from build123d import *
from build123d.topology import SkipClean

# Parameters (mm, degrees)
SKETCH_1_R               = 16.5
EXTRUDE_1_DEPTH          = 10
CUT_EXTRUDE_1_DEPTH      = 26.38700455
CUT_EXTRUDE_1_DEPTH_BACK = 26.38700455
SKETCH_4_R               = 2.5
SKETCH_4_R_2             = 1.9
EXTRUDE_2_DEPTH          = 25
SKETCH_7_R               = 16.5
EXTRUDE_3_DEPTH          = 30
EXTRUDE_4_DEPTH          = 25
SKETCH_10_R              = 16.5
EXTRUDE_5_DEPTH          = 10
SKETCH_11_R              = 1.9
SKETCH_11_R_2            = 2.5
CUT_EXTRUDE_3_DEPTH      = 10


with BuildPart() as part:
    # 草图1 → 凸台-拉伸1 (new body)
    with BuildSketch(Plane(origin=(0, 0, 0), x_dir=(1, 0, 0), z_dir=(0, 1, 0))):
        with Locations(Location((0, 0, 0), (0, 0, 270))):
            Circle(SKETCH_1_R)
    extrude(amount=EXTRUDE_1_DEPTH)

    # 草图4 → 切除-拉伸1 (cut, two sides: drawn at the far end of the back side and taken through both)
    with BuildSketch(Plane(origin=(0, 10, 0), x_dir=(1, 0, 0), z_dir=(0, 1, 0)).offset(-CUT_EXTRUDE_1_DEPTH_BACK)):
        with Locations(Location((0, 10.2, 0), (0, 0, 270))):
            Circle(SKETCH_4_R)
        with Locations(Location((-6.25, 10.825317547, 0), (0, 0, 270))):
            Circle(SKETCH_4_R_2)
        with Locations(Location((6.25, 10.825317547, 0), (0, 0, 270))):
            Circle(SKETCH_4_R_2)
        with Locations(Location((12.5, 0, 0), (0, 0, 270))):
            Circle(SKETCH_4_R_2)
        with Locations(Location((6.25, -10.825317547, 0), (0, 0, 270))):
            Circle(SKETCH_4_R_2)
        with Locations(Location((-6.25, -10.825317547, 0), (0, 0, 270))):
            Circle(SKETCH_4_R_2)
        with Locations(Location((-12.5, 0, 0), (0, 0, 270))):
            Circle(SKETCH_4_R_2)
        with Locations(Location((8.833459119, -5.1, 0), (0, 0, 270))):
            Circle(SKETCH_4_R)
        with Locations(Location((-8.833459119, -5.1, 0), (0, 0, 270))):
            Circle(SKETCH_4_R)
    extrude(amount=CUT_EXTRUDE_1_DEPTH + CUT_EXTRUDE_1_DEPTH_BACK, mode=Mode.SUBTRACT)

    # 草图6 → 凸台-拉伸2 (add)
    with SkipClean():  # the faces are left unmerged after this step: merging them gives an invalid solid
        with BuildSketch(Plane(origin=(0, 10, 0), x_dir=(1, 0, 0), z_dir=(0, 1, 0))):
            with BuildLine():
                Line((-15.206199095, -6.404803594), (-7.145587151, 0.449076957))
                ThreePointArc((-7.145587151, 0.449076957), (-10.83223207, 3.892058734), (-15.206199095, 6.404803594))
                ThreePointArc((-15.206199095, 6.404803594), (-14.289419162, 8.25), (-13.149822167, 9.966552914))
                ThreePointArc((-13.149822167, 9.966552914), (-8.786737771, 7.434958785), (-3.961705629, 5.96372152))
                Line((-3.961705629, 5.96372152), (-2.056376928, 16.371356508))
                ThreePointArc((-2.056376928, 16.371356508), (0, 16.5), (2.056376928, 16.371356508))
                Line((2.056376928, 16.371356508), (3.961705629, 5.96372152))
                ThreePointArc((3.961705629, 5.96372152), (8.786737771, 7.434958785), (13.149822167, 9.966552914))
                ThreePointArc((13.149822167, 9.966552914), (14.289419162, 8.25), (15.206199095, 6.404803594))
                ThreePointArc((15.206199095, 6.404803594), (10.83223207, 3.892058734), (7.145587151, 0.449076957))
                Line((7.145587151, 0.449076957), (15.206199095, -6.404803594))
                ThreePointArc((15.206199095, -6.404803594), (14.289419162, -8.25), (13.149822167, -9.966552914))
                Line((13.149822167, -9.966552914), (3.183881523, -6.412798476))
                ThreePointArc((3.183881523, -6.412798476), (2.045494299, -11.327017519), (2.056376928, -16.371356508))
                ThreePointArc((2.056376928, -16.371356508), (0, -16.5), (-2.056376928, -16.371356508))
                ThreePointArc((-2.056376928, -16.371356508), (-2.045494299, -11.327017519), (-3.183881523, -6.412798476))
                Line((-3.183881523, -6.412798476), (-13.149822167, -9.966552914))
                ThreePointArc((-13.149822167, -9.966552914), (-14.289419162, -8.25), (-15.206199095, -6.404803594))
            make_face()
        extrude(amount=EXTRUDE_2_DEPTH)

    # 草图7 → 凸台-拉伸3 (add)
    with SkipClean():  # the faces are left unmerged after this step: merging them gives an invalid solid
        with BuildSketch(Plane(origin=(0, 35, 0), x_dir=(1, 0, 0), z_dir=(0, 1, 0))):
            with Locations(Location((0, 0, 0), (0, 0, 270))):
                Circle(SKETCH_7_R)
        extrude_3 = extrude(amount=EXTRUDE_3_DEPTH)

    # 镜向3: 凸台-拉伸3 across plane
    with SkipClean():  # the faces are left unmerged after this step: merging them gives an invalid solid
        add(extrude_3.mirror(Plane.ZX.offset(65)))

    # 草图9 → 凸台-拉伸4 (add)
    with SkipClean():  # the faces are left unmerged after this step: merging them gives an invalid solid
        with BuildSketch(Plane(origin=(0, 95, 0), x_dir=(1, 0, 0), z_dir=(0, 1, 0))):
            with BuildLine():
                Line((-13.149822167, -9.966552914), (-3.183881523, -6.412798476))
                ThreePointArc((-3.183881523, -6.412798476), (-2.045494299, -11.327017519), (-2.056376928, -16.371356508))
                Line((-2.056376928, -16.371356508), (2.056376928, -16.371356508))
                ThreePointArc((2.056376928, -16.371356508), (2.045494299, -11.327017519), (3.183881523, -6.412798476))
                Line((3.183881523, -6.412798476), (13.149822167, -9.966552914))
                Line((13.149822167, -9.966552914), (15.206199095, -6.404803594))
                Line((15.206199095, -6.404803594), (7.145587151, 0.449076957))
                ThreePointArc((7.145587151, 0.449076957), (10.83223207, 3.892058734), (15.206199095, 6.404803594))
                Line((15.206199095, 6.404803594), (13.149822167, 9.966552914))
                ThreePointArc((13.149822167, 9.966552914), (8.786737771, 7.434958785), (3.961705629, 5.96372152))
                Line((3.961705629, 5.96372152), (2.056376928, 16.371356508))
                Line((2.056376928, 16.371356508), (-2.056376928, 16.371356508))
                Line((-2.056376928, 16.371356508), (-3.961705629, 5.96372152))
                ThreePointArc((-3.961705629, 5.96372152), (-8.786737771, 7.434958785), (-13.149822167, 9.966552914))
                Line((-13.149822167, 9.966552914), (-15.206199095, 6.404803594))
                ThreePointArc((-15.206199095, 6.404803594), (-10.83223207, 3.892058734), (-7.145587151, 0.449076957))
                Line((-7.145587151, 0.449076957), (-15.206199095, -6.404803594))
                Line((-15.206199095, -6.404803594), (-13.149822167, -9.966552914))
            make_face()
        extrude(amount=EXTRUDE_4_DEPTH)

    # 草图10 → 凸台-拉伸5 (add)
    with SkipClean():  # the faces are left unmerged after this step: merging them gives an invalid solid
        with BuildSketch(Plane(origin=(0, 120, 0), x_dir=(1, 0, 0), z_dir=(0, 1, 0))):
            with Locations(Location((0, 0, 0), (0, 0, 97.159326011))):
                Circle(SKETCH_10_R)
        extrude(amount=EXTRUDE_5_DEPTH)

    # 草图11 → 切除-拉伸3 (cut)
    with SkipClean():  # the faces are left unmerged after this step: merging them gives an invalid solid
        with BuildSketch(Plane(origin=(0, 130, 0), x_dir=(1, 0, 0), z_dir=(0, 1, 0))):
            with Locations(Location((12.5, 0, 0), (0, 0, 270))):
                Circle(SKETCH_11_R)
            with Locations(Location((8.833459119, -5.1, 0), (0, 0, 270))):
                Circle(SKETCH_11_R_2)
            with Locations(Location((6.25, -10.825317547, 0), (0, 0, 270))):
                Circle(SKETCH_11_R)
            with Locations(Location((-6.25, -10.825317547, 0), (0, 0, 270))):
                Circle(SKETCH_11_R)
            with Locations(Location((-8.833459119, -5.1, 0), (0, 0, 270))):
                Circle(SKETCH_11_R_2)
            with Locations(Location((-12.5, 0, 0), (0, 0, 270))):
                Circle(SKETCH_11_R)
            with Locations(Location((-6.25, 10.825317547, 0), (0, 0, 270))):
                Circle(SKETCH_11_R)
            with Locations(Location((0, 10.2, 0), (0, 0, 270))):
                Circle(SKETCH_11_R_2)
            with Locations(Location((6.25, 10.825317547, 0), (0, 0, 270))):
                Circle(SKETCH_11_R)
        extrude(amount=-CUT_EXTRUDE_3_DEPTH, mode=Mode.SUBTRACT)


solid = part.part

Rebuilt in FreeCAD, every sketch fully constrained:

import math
import FreeCAD as App
import Part
import Sketcher
from FreeCAD import Vector
Q = App.Units.Quantity

doc = App.newDocument("Part")
params = doc.addObject("Spreadsheet::Sheet", "Params")
for row, (alias, value) in enumerate([
    ("sketch1_diameter", "33 mm"),
    ("pad1_length", "10 mm"),
    ("sketch2_diameter", "5 mm"),
    ("sketch2_diameter2", "3.8 mm"),
    ("sketch3_radius", "22 mm"),
    ("sketch3_radius2", "16.5 mm"),
    ("pad2_length", "25 mm"),
    ("sketch4_diameter", "33 mm"),
    ("pad3_length", "30 mm"),
    ("sketch5_radius", "22 mm"),
    ("pad4_length", "25 mm"),
    ("sketch6_diameter", "33 mm"),
    ("pad5_length", "10 mm"),
    ("sketch7_diameter", "5 mm"),
    ("sketch7_diameter2", "3.8 mm"),
    ("pocket2_length", "10 mm"),
], start=1):
    params.set(f"A{row}", alias)
    params.set(f"B{row}", "=" + value)
    params.setAlias(f"B{row}", alias)

body = doc.addObject("PartDesign::Body", "Body")

# Sketch on XZ plane
sketch1 = body.newObject("Sketcher::SketchObject", "Sketch")
sketch1.AttachmentSupport = (doc.getObject("XZ_Plane"), [""])
sketch1.MapMode = "FlatFace"
sketch1.addGeometry(Part.Circle(Vector(0, 0, 0), Vector(0, 0, 1), 16), False)
sketch1.addConstraint([
    Sketcher.Constraint("Coincident", 0, 3, -1, 1),
    Sketcher.Constraint("Diameter", 0, Q("33 mm")),
])
sketch1.setExpression("Constraints[1]", "Params.sketch1_diameter")
pad1 = body.newObject("PartDesign::Pad", "Pad")
pad1.Profile = sketch1
pad1.setExpression("Length", "Params.pad1_length")
pad1.Reversed = True

# Sketch on XZ plane
sketch2 = body.newObject("Sketcher::SketchObject", "Sketch001")
sketch2.AttachmentSupport = (doc.getObject("XZ_Plane"), [""])
sketch2.MapMode = "FlatFace"
sketch2.AttachmentOffset = App.Placement(Vector(0, 0, -10), App.Rotation())
sketch2.addGeometry([
    Part.Circle(Vector(0, -10.2, 0), Vector(0, 0, 1), 2.5),  # 0
    Part.Circle(Vector(-6.2, -10.8, 0), Vector(0, 0, 1), 1.9),  # 1
    Part.Circle(Vector(6.2, -10.8, 0), Vector(0, 0, 1), 1.9),  # 2
    Part.Circle(Vector(12.5, 0, 0), Vector(0, 0, 1), 1.9),  # 3
    Part.Circle(Vector(6.2, 10.8, 0), Vector(0, 0, 1), 1.9),  # 4
    Part.Circle(Vector(-6.2, 10.8, 0), Vector(0, 0, 1), 1.9),  # 5
    Part.Circle(Vector(-12.5, 0, 0), Vector(0, 0, 1), 1.9),  # 6
    Part.Circle(Vector(8.8, 5.1, 0), Vector(0, 0, 1), 2.5),  # 7
    Part.Circle(Vector(-8.8, 5.1, 0), Vector(0, 0, 1), 2.5),  # 8
], False)
sketch2.addConstraint([
    Sketcher.Constraint("Equal", 1, 2),
    Sketcher.Constraint("Equal", 2, 3),
    Sketcher.Constraint("Equal", 3, 4),
    Sketcher.Constraint("Equal", 4, 5),
    Sketcher.Constraint("Equal", 5, 6),
    Sketcher.Constraint("Equal", 0, 7),
    Sketcher.Constraint("Equal", 7, 8),
    Sketcher.Constraint("Symmetric", 1, 3, 4, 3, -1, 1),
    Sketcher.Constraint("Symmetric", 2, 3, 5, 3, -1, 1),
    Sketcher.Constraint("Symmetric", 3, 3, 6, 3, -1, 1),
    Sketcher.Constraint("Symmetric", 1, 3, 2, 3, -2),
    Sketcher.Constraint("Symmetric", 7, 3, 8, 3, -2),
    Sketcher.Constraint("PointOnObject", 0, 3, -2),
    Sketcher.Constraint("PointOnObject", 3, 3, -1),
    Sketcher.Constraint("Diameter", 0, Q("5 mm")),
    Sketcher.Constraint("Diameter", 1, Q("3.8 mm")),
    Sketcher.Constraint("DistanceY", 0, 3, -1, 1, Q("10.2 mm")),
    Sketcher.Constraint("DistanceX", -1, 1, 3, 3, Q("12.5 mm")),
    Sketcher.Constraint("DistanceY", -1, 1, 7, 3, Q("5.1 mm")),
    Sketcher.Constraint("DistanceX", 1, 3, 2, 3, Q("12.5 mm")),
    Sketcher.Constraint("DistanceX", -1, 1, 7, 3, Q("8.833459 mm")),
    Sketcher.Constraint("DistanceY", 1, 3, -1, 1, Q("10.825318 mm")),
])
sketch2.setExpression("Constraints[14]", "Params.sketch2_diameter")
sketch2.setExpression("Constraints[15]", "Params.sketch2_diameter2")
pocket1 = body.newObject("PartDesign::Pocket", "Pocket")
pocket1.Profile = sketch2
pocket1.Type = "ThroughAll"
pocket1.Midplane = True

# Sketch on XZ plane
sketch3 = body.newObject("Sketcher::SketchObject", "Sketch002")
sketch3.AttachmentSupport = (doc.getObject("XZ_Plane"), [""])
sketch3.MapMode = "FlatFace"
sketch3.AttachmentOffset = App.Placement(Vector(0, 0, -10), App.Rotation())
sketch3.addGeometry([
    Part.LineSegment(Vector(-7.1, -0.4, 0), Vector(-15.2, 6.4, 0)),  # 0
    Part.ArcOfCircle(Part.Circle(Vector(0, 0, 0), Vector(0, 0, 1), 16.5), math.radians(142.84), math.radians(157.16)),  # 1
    Part.LineSegment(Vector(-13.1, 10, 0), Vector(-3.2, 6.4, 0)),  # 2
    Part.ArcOfCircle(Part.Circle(Vector(-23.9, 13.8, 0), Vector(0, 0, 1), 22), math.radians(-20), math.radians(7)),  # 3
    Part.ArcOfCircle(Part.Circle(Vector(0, 0, 0), Vector(0, 0, 1), 16.5), math.radians(82.84), math.radians(97.16)),  # 4
    Part.ArcOfCircle(Part.Circle(Vector(23.9, 13.8, 0), Vector(0, 0, 1), 22), math.radians(173), math.radians(200)),  # 5
    Part.LineSegment(Vector(3.2, 6.4, 0), Vector(13.1, 10, 0)),  # 6
    Part.ArcOfCircle(Part.Circle(Vector(0, 0, 0), Vector(0, 0, 1), 16.5), math.radians(22.84), math.radians(37.16)),  # 7
    Part.LineSegment(Vector(15.2, 6.4, 0), Vector(7.1, -0.4, 0)),  # 8
    Part.ArcOfCircle(Part.Circle(Vector(23.9, 13.8, 0), Vector(0, 0, 1), 22), math.radians(-140), math.radians(-113)),  # 9
    Part.ArcOfCircle(Part.Circle(Vector(0, 0, 0), Vector(0, 0, 1), 16.5), math.radians(-37.16), math.radians(-22.84)),  # 10
    Part.ArcOfCircle(Part.Circle(Vector(0, -27.6, 0), Vector(0, 0, 1), 22), math.radians(53), math.radians(80)),  # 11
    Part.LineSegment(Vector(4, -6, 0), Vector(2.1, -16.4, 0)),  # 12
    Part.ArcOfCircle(Part.Circle(Vector(0, 0, 0), Vector(0, 0, 1), 16.5), math.radians(-97.16), math.radians(-82.84)),  # 13
    Part.LineSegment(Vector(-2.1, -16.4, 0), Vector(-4, -6, 0)),  # 14
    Part.ArcOfCircle(Part.Circle(Vector(0, -27.6, 0), Vector(0, 0, 1), 22), math.radians(100), math.radians(127)),  # 15
    Part.ArcOfCircle(Part.Circle(Vector(0, 0, 0), Vector(0, 0, 1), 16.5), math.radians(-157.16), math.radians(-142.84)),  # 16
    Part.ArcOfCircle(Part.Circle(Vector(-23.9, 13.8, 0), Vector(0, 0, 1), 22), math.radians(-67), math.radians(-40)),  # 17
], False)
sketch3.addConstraint([
    Sketcher.Constraint("Coincident", 0, 2, 1, 2),
    Sketcher.Constraint("Coincident", 1, 1, 2, 1),
    Sketcher.Constraint("Coincident", 2, 2, 3, 1),
    Sketcher.Constraint("Coincident", 3, 2, 4, 2),
    Sketcher.Constraint("Coincident", 4, 1, 5, 1),
    Sketcher.Constraint("Coincident", 5, 2, 6, 1),
    Sketcher.Constraint("Coincident", 6, 2, 7, 2),
    Sketcher.Constraint("Coincident", 7, 1, 8, 1),
    Sketcher.Constraint("Coincident", 8, 2, 9, 1),
    Sketcher.Constraint("Coincident", 9, 2, 10, 2),
    Sketcher.Constraint("Coincident", 10, 1, 11, 1),
    Sketcher.Constraint("Coincident", 11, 2, 12, 1),
    Sketcher.Constraint("Coincident", 12, 2, 13, 2),
    Sketcher.Constraint("Coincident", 13, 1, 14, 1),
    Sketcher.Constraint("Coincident", 14, 2, 15, 1),
    Sketcher.Constraint("Coincident", 15, 2, 16, 2),
    Sketcher.Constraint("Coincident", 16, 1, 17, 1),
    Sketcher.Constraint("Coincident", 17, 2, 0, 1),
    Sketcher.Constraint("Coincident", 1, 3, -1, 1),
    Sketcher.Constraint("Coincident", 4, 3, -1, 1),
    Sketcher.Constraint("Coincident", 7, 3, -1, 1),
    Sketcher.Constraint("Coincident", 10, 3, -1, 1),
    Sketcher.Constraint("Coincident", 13, 3, -1, 1),
    Sketcher.Constraint("Coincident", 16, 3, -1, 1),
    Sketcher.Constraint("Coincident", 9, 3, 5, 3),
    Sketcher.Constraint("Coincident", 15, 3, 11, 3),
    Sketcher.Constraint("Coincident", 17, 3, 3, 3),
    Sketcher.Constraint("Equal", 1, 4),
    Sketcher.Constraint("Equal", 3, 5),
    Sketcher.Constraint("Equal", 4, 7),
    Sketcher.Constraint("Equal", 5, 9),
    Sketcher.Constraint("Equal", 7, 10),
    Sketcher.Constraint("Equal", 9, 11),
    Sketcher.Constraint("Equal", 10, 13),
    Sketcher.Constraint("Equal", 11, 15),
    Sketcher.Constraint("Equal", 13, 16),
    Sketcher.Constraint("Equal", 15, 17),
    Sketcher.Constraint("Symmetric", 3, 3, 5, 3, -2),
    Sketcher.Constraint("Symmetric", 11, 2, 14, 2, -2),
    Sketcher.Constraint("Horizontal", 2, 2, 5, 2),
    Sketcher.Constraint("Horizontal", 1, 1, 6, 2),
    Sketcher.Constraint("Horizontal", 0, 2, 7, 1),
    Sketcher.Constraint("Horizontal", 12, 2, 13, 1),
    Sketcher.Constraint("Horizontal", 8, 2, 17, 2),
    Sketcher.Constraint("Vertical", 7, 1, 9, 2),
    Sketcher.Constraint("Vertical", 6, 2, 10, 1),
    Sketcher.Constraint("Vertical", 4, 1, 12, 2),
    Sketcher.Constraint("Equal", 0, 2),
    Sketcher.Constraint("Equal", 8, 12),
    Sketcher.Constraint("Radius", 3, Q("22 mm")),
    Sketcher.Constraint("Radius", 1, Q("16.5 mm")),
    Sketcher.Constraint("DistanceX", 0, 2, -1, 1, Q("15.206199 mm")),
    Sketcher.Constraint("DistanceY", -1, 1, 2, 2, Q("6.412798 mm")),
    Sketcher.Constraint("DistanceY", 11, 2, -1, 1, Q("5.963722 mm")),
    Sketcher.Constraint("DistanceX", 8, 2, 9, 2, Q("8.060612 mm")),
])
sketch3.setExpression("Constraints[49]", "Params.sketch3_radius")
sketch3.setExpression("Constraints[50]", "Params.sketch3_radius2")
pad2 = body.newObject("PartDesign::Pad", "Pad001")
pad2.Profile = sketch3
pad2.setExpression("Length", "Params.pad2_length")
pad2.Reversed = True

# Sketch on XZ plane
sketch4 = body.newObject("Sketcher::SketchObject", "Sketch003")
sketch4.AttachmentSupport = (doc.getObject("XZ_Plane"), [""])
sketch4.MapMode = "FlatFace"
sketch4.AttachmentOffset = App.Placement(Vector(0, 0, -35), App.Rotation())
sketch4.addGeometry(Part.Circle(Vector(0, 0, 0), Vector(0, 0, 1), 16), False)
sketch4.addConstraint([
    Sketcher.Constraint("Coincident", 0, 3, -1, 1),
    Sketcher.Constraint("Diameter", 0, Q("33 mm")),
])
sketch4.setExpression("Constraints[1]", "Params.sketch4_diameter")
pad3 = body.newObject("PartDesign::Pad", "Pad002")
pad3.Profile = sketch4
pad3.setExpression("Length", "Params.pad3_length")
pad3.Reversed = True
doc.recompute()

datumplane = body.newObject("PartDesign::Plane", "DatumPlane")
datumplane.AttachmentSupport = (doc.getObject("XZ_Plane"), [""])
datumplane.MapMode = "FlatFace"
datumplane.AttachmentOffset = App.Placement(Vector(0, 0, -65), App.Rotation())
mirrored = body.newObject("PartDesign::Mirrored", "Mirrored")
mirrored.Originals = [pad3]
mirrored.MirrorPlane = (datumplane, [""])
body.Tip = mirrored

# Sketch on XZ plane
sketch5 = body.newObject("Sketcher::SketchObject", "Sketch004")
sketch5.AttachmentSupport = (doc.getObject("XZ_Plane"), [""])
sketch5.MapMode = "FlatFace"
sketch5.AttachmentOffset = App.Placement(Vector(0, 0, -95), App.Rotation())
sketch5.addGeometry([
    Part.LineSegment(Vector(-13.1, 10, 0), Vector(-3.2, 6.4, 0)),  # 0
    Part.ArcOfCircle(Part.Circle(Vector(-23.9, 13.8, 0), Vector(0, 0, 1), 22), math.radians(-20), math.radians(7)),  # 1
    Part.LineSegment(Vector(-2.1, 16.4, 0), Vector(2.1, 16.4, 0)),  # 2
    Part.ArcOfCircle(Part.Circle(Vector(23.9, 13.8, 0), Vector(0, 0, 1), 22), math.radians(173), math.radians(200)),  # 3
    Part.LineSegment(Vector(3.2, 6.4, 0), Vector(13.1, 10, 0)),  # 4
    Part.LineSegment(Vector(13.1, 10, 0), Vector(15.2, 6.4, 0)),  # 5
    Part.LineSegment(Vector(15.2, 6.4, 0), Vector(7.1, -0.4, 0)),  # 6
    Part.ArcOfCircle(Part.Circle(Vector(23.9, 13.8, 0), Vector(0, 0, 1), 22), math.radians(-140), math.radians(-113)),  # 7
    Part.LineSegment(Vector(15.2, -6.4, 0), Vector(13.1, -10, 0)),  # 8
    Part.ArcOfCircle(Part.Circle(Vector(0, -27.6, 0), Vector(0, 0, 1), 22), math.radians(53), math.radians(80)),  # 9
    Part.LineSegment(Vector(4, -6, 0), Vector(2.1, -16.4, 0)),  # 10
    Part.LineSegment(Vector(2.1, -16.4, 0), Vector(-2.1, -16.4, 0)),  # 11
    Part.LineSegment(Vector(-2.1, -16.4, 0), Vector(-4, -6, 0)),  # 12
    Part.ArcOfCircle(Part.Circle(Vector(0, -27.6, 0), Vector(0, 0, 1), 22), math.radians(100), math.radians(127)),  # 13
    Part.LineSegment(Vector(-13.1, -10, 0), Vector(-15.2, -6.4, 0)),  # 14
    Part.ArcOfCircle(Part.Circle(Vector(-23.9, 13.8, 0), Vector(0, 0, 1), 22), math.radians(-67), math.radians(-40)),  # 15
    Part.LineSegment(Vector(-7.1, -0.4, 0), Vector(-15.2, 6.4, 0)),  # 16
    Part.LineSegment(Vector(-15.2, 6.4, 0), Vector(-13.1, 10, 0)),  # 17
], False)
sketch5.addConstraint([
    Sketcher.Constraint("Coincident", 0, 2, 1, 1),
    Sketcher.Constraint("Coincident", 1, 2, 2, 1),
    Sketcher.Constraint("Coincident", 2, 2, 3, 1),
    Sketcher.Constraint("Coincident", 3, 2, 4, 1),
    Sketcher.Constraint("Coincident", 4, 2, 5, 1),
    Sketcher.Constraint("Coincident", 5, 2, 6, 1),
    Sketcher.Constraint("Coincident", 6, 2, 7, 1),
    Sketcher.Constraint("Coincident", 7, 2, 8, 1),
    Sketcher.Constraint("Coincident", 8, 2, 9, 1),
    Sketcher.Constraint("Coincident", 9, 2, 10, 1),
    Sketcher.Constraint("Coincident", 10, 2, 11, 1),
    Sketcher.Constraint("Coincident", 11, 2, 12, 1),
    Sketcher.Constraint("Coincident", 12, 2, 13, 1),
    Sketcher.Constraint("Coincident", 13, 2, 14, 1),
    Sketcher.Constraint("Coincident", 14, 2, 15, 1),
    Sketcher.Constraint("Coincident", 15, 2, 16, 1),
    Sketcher.Constraint("Coincident", 16, 2, 17, 1),
    Sketcher.Constraint("Coincident", 17, 2, 0, 1),
    Sketcher.Constraint("Horizontal", 2),
    Sketcher.Constraint("Horizontal", 11),
    Sketcher.Constraint("Coincident", 7, 3, 3, 3),
    Sketcher.Constraint("Coincident", 13, 3, 9, 3),
    Sketcher.Constraint("Coincident", 15, 3, 1, 3),
    Sketcher.Constraint("Equal", 1, 3),
    Sketcher.Constraint("Equal", 3, 7),
    Sketcher.Constraint("Equal", 7, 9),
    Sketcher.Constraint("Equal", 9, 13),
    Sketcher.Constraint("Equal", 13, 15),
    Sketcher.Constraint("Symmetric", 1, 2, 10, 2, -1, 1),
    Sketcher.Constraint("Symmetric", 4, 2, 13, 2, -1, 1),
    Sketcher.Constraint("Symmetric", 5, 2, 14, 2, -1, 1),
    Sketcher.Constraint("Symmetric", 7, 2, 16, 2, -1, 1),
    Sketcher.Constraint("Symmetric", 8, 2, 17, 2, -1, 1),
    Sketcher.Constraint("Symmetric", 1, 3, 3, 3, -2),
    Sketcher.Constraint("Symmetric", 9, 2, 12, 2, -2),
    Sketcher.Constraint("Horizontal", 0, 2, 3, 2),
    Sketcher.Constraint("Horizontal", 8, 2, 13, 2),
    Sketcher.Constraint("Horizontal", 7, 2, 14, 2),
    Sketcher.Constraint("Horizontal", 6, 2, 15, 2),
    Sketcher.Constraint("Vertical", 1, 2, 11, 2),
    Sketcher.Constraint("Equal", 4, 6),
    Sketcher.Constraint("Equal", 6, 10),
    Sketcher.Constraint("Radius", 1, Q("22 mm")),
    Sketcher.Constraint("Angle", 5, Q("-60 deg")),
    Sketcher.Constraint("DistanceY", -1, 1, 0, 2, Q("6.412798 mm")),
    Sketcher.Constraint("DistanceX", -1, 1, 5, 2, Q("15.206199 mm")),
    Sketcher.Constraint("DistanceX", 1, 2, 4, 2, Q("15.206199 mm")),
    Sketcher.Constraint("DistanceX", 2, 1, 2, 2, Q("4.112754 mm")),
    Sketcher.Constraint("DistanceY", 9, 2, -1, 1, Q("5.963722 mm")),
    Sketcher.Constraint("DistanceX", 6, 2, 5, 2, Q("8.060612 mm")),
])
sketch5.setExpression("Constraints[42]", "Params.sketch5_radius")
pad4 = body.newObject("PartDesign::Pad", "Pad003")
pad4.Profile = sketch5
pad4.setExpression("Length", "Params.pad4_length")
pad4.Reversed = True

# Sketch on XZ plane
sketch6 = body.newObject("Sketcher::SketchObject", "Sketch005")
sketch6.AttachmentSupport = (doc.getObject("XZ_Plane"), [""])
sketch6.MapMode = "FlatFace"
sketch6.AttachmentOffset = App.Placement(Vector(0, 0, -120), App.Rotation())
sketch6.addGeometry(Part.Circle(Vector(0, 0, 0), Vector(0, 0, 1), 16), False)
sketch6.addConstraint([
    Sketcher.Constraint("Coincident", 0, 3, -1, 1),
    Sketcher.Constraint("Diameter", 0, Q("33 mm")),
])
sketch6.setExpression("Constraints[1]", "Params.sketch6_diameter")
pad5 = body.newObject("PartDesign::Pad", "Pad004")
pad5.Profile = sketch6
pad5.setExpression("Length", "Params.pad5_length")
pad5.Reversed = True

# Sketch on XZ plane
sketch7 = body.newObject("Sketcher::SketchObject", "Sketch006")
sketch7.AttachmentSupport = (doc.getObject("XZ_Plane"), [""])
sketch7.MapMode = "FlatFace"
sketch7.AttachmentOffset = App.Placement(Vector(0, 0, -130), App.Rotation())
sketch7.addGeometry([
    Part.Circle(Vector(12.5, 0, 0), Vector(0, 0, 1), 1.9),  # 0
    Part.Circle(Vector(8.8, 5.1, 0), Vector(0, 0, 1), 2.5),  # 1
    Part.Circle(Vector(6.2, 10.8, 0), Vector(0, 0, 1), 1.9),  # 2
    Part.Circle(Vector(-6.2, 10.8, 0), Vector(0, 0, 1), 1.9),  # 3
    Part.Circle(Vector(-8.8, 5.1, 0), Vector(0, 0, 1), 2.5),  # 4
    Part.Circle(Vector(-12.5, 0, 0), Vector(0, 0, 1), 1.9),  # 5
    Part.Circle(Vector(-6.2, -10.8, 0), Vector(0, 0, 1), 1.9),  # 6
    Part.Circle(Vector(0, -10.2, 0), Vector(0, 0, 1), 2.5),  # 7
    Part.Circle(Vector(6.2, -10.8, 0), Vector(0, 0, 1), 1.9),  # 8
], False)
sketch7.addConstraint([
    Sketcher.Constraint("Equal", 0, 2),
    Sketcher.Constraint("Equal", 2, 3),
    Sketcher.Constraint("Equal", 1, 4),
    Sketcher.Constraint("Equal", 3, 5),
    Sketcher.Constraint("Equal", 5, 6),
    Sketcher.Constraint("Equal", 4, 7),
    Sketcher.Constraint("Equal", 6, 8),
    Sketcher.Constraint("Symmetric", 0, 3, 5, 3, -1, 1),
    Sketcher.Constraint("Symmetric", 2, 3, 6, 3, -1, 1),
    Sketcher.Constraint("Symmetric", 3, 3, 8, 3, -1, 1),
    Sketcher.Constraint("Symmetric", 2, 3, 3, 3, -2),
    Sketcher.Constraint("Symmetric", 1, 3, 4, 3, -2),
    Sketcher.Constraint("PointOnObject", 0, 3, -1),
    Sketcher.Constraint("PointOnObject", 7, 3, -2),
    Sketcher.Constraint("Diameter", 1, Q("5 mm")),
    Sketcher.Constraint("Diameter", 0, Q("3.8 mm")),
    Sketcher.Constraint("DistanceX", 5, 3, 0, 3, Q("25 mm")),
    Sketcher.Constraint("DistanceY", -1, 1, 1, 3, Q("5.1 mm")),
    Sketcher.Constraint("DistanceY", 7, 3, -1, 1, Q("10.2 mm")),
    Sketcher.Constraint("DistanceX", 3, 3, 2, 3, Q("12.5 mm")),
    Sketcher.Constraint("DistanceX", -1, 1, 1, 3, Q("8.833459 mm")),
    Sketcher.Constraint("DistanceY", -1, 1, 2, 3, Q("10.825318 mm")),
])
sketch7.setExpression("Constraints[14]", "Params.sketch7_diameter")
sketch7.setExpression("Constraints[15]", "Params.sketch7_diameter2")
pocket2 = body.newObject("PartDesign::Pocket", "Pocket001")
pocket2.Profile = sketch7
pocket2.setExpression("Length", "Params.pocket2_length")
pocket2.Reversed = True

doc.recompute()
